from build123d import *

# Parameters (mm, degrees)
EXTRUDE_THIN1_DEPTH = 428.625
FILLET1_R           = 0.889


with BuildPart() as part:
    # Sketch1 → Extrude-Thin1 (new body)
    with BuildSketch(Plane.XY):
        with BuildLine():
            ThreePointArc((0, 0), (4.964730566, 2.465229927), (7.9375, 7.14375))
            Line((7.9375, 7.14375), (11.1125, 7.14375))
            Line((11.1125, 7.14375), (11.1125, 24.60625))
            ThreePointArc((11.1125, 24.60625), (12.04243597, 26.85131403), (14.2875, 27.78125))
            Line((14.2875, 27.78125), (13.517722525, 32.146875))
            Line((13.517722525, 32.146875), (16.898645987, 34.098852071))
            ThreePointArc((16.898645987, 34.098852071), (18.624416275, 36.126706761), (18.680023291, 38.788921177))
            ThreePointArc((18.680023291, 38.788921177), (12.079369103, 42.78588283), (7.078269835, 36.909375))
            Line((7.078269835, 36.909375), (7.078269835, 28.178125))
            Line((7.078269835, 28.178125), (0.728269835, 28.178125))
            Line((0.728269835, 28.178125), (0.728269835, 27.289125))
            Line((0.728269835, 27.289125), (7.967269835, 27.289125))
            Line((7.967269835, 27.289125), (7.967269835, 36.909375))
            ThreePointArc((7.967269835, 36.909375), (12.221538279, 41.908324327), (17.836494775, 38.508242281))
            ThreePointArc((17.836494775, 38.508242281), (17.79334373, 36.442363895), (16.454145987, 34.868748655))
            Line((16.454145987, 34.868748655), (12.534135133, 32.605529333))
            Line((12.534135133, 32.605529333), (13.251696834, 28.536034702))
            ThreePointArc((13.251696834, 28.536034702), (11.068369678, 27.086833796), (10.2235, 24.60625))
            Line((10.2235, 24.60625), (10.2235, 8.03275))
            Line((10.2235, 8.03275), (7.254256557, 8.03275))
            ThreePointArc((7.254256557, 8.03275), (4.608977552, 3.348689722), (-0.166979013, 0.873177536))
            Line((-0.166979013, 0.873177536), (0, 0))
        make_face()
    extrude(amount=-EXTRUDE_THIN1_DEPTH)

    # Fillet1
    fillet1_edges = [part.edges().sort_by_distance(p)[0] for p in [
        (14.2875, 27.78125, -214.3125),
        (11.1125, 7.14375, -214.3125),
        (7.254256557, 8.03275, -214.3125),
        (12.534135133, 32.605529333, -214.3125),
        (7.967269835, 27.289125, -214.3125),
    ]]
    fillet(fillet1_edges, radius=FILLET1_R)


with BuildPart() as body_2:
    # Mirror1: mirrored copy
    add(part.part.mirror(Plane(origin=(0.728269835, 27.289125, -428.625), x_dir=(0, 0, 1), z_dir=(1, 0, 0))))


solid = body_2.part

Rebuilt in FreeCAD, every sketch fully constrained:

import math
import FreeCAD as App
import Part
import Sketcher

V = App.Vector
Q = App.Units.Quantity


def edges_at(feature, points):
    """Names of the edges that pass closest to the given points."""
    edges = feature.Shape.Edges
    near = lambda p: min(range(len(edges)), key=lambda i: edges[i].distToShape(Part.Vertex(*p))[0])
    return sorted({f"Edge{near(p) + 1}" for p in points})

doc = App.newDocument("Part")
body = doc.addObject("PartDesign::Body", "Body")

# Sketch on XY plane
sketch1 = body.newObject("Sketcher::SketchObject", "Sketch")
sketch1.AttachmentSupport = (doc.getObject("XY_Plane"), [""])
sketch1.MapMode = "FlatFace"
sketch1.addGeometry(Part.ArcOfCircle(Part.Circle(V(-1.938149, 10.135096, 0), V(0, 0, 1), 10.31875), math.radians(-79.173949), math.radians(-16.851626)), False)
sketch1.addGeometry(Part.LineSegment(V(7.9375, 7.14375, 0), V(11.1125, 7.14375, 0)), False)
sketch1.addGeometry(Part.LineSegment(V(11.1125, 7.14375, 0), V(11.1125, 24.60625, 0)), False)
sketch1.addGeometry(Part.ArcOfCircle(Part.Circle(V(14.2875, 24.60625, 0), V(0, 0, 1), 3.175), math.radians(90), math.radians(180)), False)
sketch1.addGeometry(Part.LineSegment(V(14.2875, 27.78125, 0), V(13.517723, 32.146875, 0)), False)
sketch1.addGeometry(Part.LineSegment(V(13.517723, 32.146875, 0), V(16.898646, 34.098852, 0)), False)
sketch1.addGeometry(Part.ArcOfCircle(Part.Circle(V(14.914271, 37.53589, 0), V(0, 0, 1), 3.96875), math.radians(-60), math.radians(18.404544)), False)
sketch1.addGeometry(Part.ArcOfCircle(Part.Circle(V(13.031395, 36.909375, 0), V(0, 0, 1), 5.953125), math.radians(18.404544), math.radians(180)), False)
sketch1.addGeometry(Part.LineSegment(V(7.07827, 36.909375, 0), V(7.07827, 28.178125, 0)), False)
sketch1.addGeometry(Part.LineSegment(V(7.07827, 28.178125, 0), V(0.72827, 28.178125, 0)), False)
sketch1.addGeometry(Part.LineSegment(V(0.72827, 28.178125, 0), V(0.72827, 27.289125, 0)), False)
sketch1.addGeometry(Part.LineSegment(V(0.72827, 27.289125, 0), V(7.96727, 27.289125, 0)), False)
sketch1.addGeometry(Part.LineSegment(V(7.96727, 27.289125, 0), V(7.96727, 36.909375, 0)), False)
sketch1.addGeometry(Part.ArcOfCircle(Part.Circle(V(13.031395, 36.909375, 0), V(0, 0, 1), 5.064125), math.radians(18.404544), math.radians(180)), False)
sketch1.addGeometry(Part.ArcOfCircle(Part.Circle(V(14.914271, 37.53589, 0), V(0, 0, 1), 3.07975), math.radians(-60), math.radians(18.404544)), False)
sketch1.addGeometry(Part.LineSegment(V(16.454146, 34.868749, 0), V(12.534135, 32.605529, 0)), False)
sketch1.addGeometry(Part.LineSegment(V(12.534135, 32.605529, 0), V(13.251697, 28.536035, 0)), False)
sketch1.addGeometry(Part.ArcOfCircle(Part.Circle(V(14.2875, 24.60625, 0), V(0, 0, 1), 4.064), math.radians(104.76605), math.radians(180)), False)
sketch1.addGeometry(Part.LineSegment(V(10.2235, 24.60625, 0), V(10.2235, 8.03275, 0)), False)
sketch1.addGeometry(Part.LineSegment(V(10.2235, 8.03275, 0), V(7.254257, 8.03275, 0)), False)
sketch1.addGeometry(Part.ArcOfCircle(Part.Circle(V(-1.938149, 10.135096, 0), V(0, 0, 1), 9.42975), math.radians(-79.173949), math.radians(-12.882258)), False)
sketch1.addGeometry(Part.LineSegment(V(-0.166979, 0.873178, 0), V(0, 0, 0)), False)
sketch1.addConstraint(Sketcher.Constraint("Coincident", 0, 2, 1, 1))
sketch1.addConstraint(Sketcher.Constraint("Coincident", 1, 2, 2, 1))
sketch1.addConstraint(Sketcher.Constraint("Tangent", 2, 2, 3, 2))
sketch1.addConstraint(Sketcher.Constraint("Coincident", 3, 1, 4, 1))
sketch1.addConstraint(Sketcher.Constraint("Coincident", 4, 2, 5, 1))
sketch1.addConstraint(Sketcher.Constraint("Tangent", 5, 2, 6, 1))
sketch1.addConstraint(Sketcher.Constraint("Tangent", 6, 2, 7, 1))
sketch1.addConstraint(Sketcher.Constraint("Tangent", 7, 2, 8, 1))
sketch1.addConstraint(Sketcher.Constraint("Coincident", 8, 2, 9, 1))
sketch1.addConstraint(Sketcher.Constraint("Coincident", 9, 2, 10, 1))
sketch1.addConstraint(Sketcher.Constraint("Coincident", 10, 2, 11, 1))
sketch1.addConstraint(Sketcher.Constraint("Coincident", 11, 2, 12, 1))
sketch1.addConstraint(Sketcher.Constraint("Tangent", 12, 2, 13, 2))
sketch1.addConstraint(Sketcher.Constraint("Tangent", 13, 1, 14, 2))
sketch1.addConstraint(Sketcher.Constraint("Tangent", 14, 1, 15, 1))
sketch1.addConstraint(Sketcher.Constraint("Coincident", 15, 2, 16, 1))
sketch1.addConstraint(Sketcher.Constraint("Coincident", 16, 2, 17, 1))
sketch1.addConstraint(Sketcher.Constraint("Tangent", 17, 2, 18, 1))
sketch1.addConstraint(Sketcher.Constraint("Coincident", 18, 2, 19, 1))
sketch1.addConstraint(Sketcher.Constraint("Coincident", 19, 2, 20, 2))
sketch1.addConstraint(Sketcher.Constraint("Coincident", 20, 1, 21, 1))
sketch1.addConstraint(Sketcher.Constraint("Coincident", 21, 2, 0, 1))
sketch1.addConstraint(Sketcher.Constraint("Horizontal", 1))
sketch1.addConstraint(Sketcher.Constraint("Vertical", 2))
sketch1.addConstraint(Sketcher.Constraint("Vertical", 8))
sketch1.addConstraint(Sketcher.Constraint("Horizontal", 9))
sketch1.addConstraint(Sketcher.Constraint("Vertical", 10))
sketch1.addConstraint(Sketcher.Constraint("Horizontal", 11))
sketch1.addConstraint(Sketcher.Constraint("Vertical", 12))
sketch1.addConstraint(Sketcher.Constraint("Vertical", 18))
sketch1.addConstraint(Sketcher.Constraint("Horizontal", 19))
sketch1.addConstraint(Sketcher.Constraint("Coincident", 21, 2, -1, 1))
sketch1.addConstraint(Sketcher.Constraint("Coincident", 13, 3, 7, 3))
sketch1.addConstraint(Sketcher.Constraint("Coincident", 14, 3, 6, 3))
sketch1.addConstraint(Sketcher.Constraint("Coincident", 17, 3, 3, 3))
sketch1.addConstraint(Sketcher.Constraint("Coincident", 20, 3, 0, 3))
sketch1.addConstraint(Sketcher.Constraint("Parallel", 5, 15))
sketch1.addConstraint(Sketcher.Constraint("Parallel", 4, 16))
sketch1.addConstraint(Sketcher.Constraint("Vertical", 17, 3, 3, 1))
sketch1.addConstraint(Sketcher.Constraint("Radius", 17, Q("0.16 in")))
sketch1.addConstraint(Sketcher.Constraint("Angle", 4, Q("100 deg")))
sketch1.addConstraint(Sketcher.Constraint("Angle", 5, Q("30 deg")))
sketch1.addConstraint(Sketcher.Constraint("Radius", 0, Q("0.40625 in")))
sketch1.addConstraint(Sketcher.Constraint("Radius", 3, Q("0.125 in")))
sketch1.addConstraint(Sketcher.Constraint("Radius", 6, Q("0.15625 in")))
sketch1.addConstraint(Sketcher.Constraint("Radius", 7, Q("0.234375 in")))
sketch1.addConstraint(Sketcher.Constraint("DistanceX", 9, 2, 9, 1, Q("0.25 in")))
sketch1.addConstraint(Sketcher.Constraint("DistanceX", 1, 1, 1, 2, Q("0.125 in")))
sketch1.addConstraint(Sketcher.Constraint("DistanceX", 11, 1, 11, 2, Q("0.285 in")))
sketch1.addConstraint(Sketcher.Constraint("DistanceY", 2, 1, 2, 2, Q("0.6875 in")))
sketch1.addConstraint(Sketcher.Constraint("DistanceY", 8, 2, 8, 1, Q("0.34375 in")))
sketch1.addConstraint(Sketcher.Constraint("DistanceY", 10, 2, 10, 1, Q("0.035 in")))
sketch1.addConstraint(Sketcher.Constraint("Distance", 21, Q("0.035 in")))
sketch1.addConstraint(Sketcher.Constraint("DistanceY", 18, 2, 18, 1, Q("0.6525 in")))
sketch1.addConstraint(Sketcher.Constraint("DistanceX", -1, 1, 3, 3, Q("0.5625 in")))
sketch1.addConstraint(Sketcher.Constraint("DistanceY", -1, 1, 3, 3, Q("0.96875 in")))
sketch1.addConstraint(Sketcher.Constraint("DistanceY", -1, 1, 7, 3, Q("1.453125 in")))
sketch1.addConstraint(Sketcher.Constraint("DistanceY", -1, 1, 4, 2, Q("1.265625 in")))
sketch1.addConstraint(Sketcher.Constraint("DistanceX", 7, 2, 14, 3, 7.836001))
sketch1.addConstraint(Sketcher.Constraint("Distance", 15, 4.526439))
sketch1.addConstraint(Sketcher.Constraint("DistanceX", 20, 1, -1, 1, 0.166979))
pad1 = body.newObject("PartDesign::Pad", "Pad")
pad1.Profile = sketch1
pad1.Length = Q("16.875 in")
pad1.Reversed = True
doc.recompute()

fillet = body.newObject("PartDesign::Fillet", "Fillet")
fillet.Base = (pad1, edges_at(pad1, [
    (14.287, 27.781, -214.312),
    (11.113, 7.144, -214.312),
    (7.254, 8.033, -214.312),
    (12.534, 32.606, -214.312),
    (7.967, 27.289, -214.312),
]))
fillet.Radius = Q("0.035 in")
body2 = doc.addObject("PartDesign::Body", "Body001")
doc.recompute()

mirroring = doc.addObject("Part::Mirroring", "Mirroring")
mirroring.Source = body
mirroring.Base = V(0.72827, 27.289125, -428.625)
mirroring.Normal = V(1, 0, 0)
body2.BaseFeature = mirroring
doc.recompute()
body.Visibility = False
mirroring.Visibility = False

doc.recompute()
